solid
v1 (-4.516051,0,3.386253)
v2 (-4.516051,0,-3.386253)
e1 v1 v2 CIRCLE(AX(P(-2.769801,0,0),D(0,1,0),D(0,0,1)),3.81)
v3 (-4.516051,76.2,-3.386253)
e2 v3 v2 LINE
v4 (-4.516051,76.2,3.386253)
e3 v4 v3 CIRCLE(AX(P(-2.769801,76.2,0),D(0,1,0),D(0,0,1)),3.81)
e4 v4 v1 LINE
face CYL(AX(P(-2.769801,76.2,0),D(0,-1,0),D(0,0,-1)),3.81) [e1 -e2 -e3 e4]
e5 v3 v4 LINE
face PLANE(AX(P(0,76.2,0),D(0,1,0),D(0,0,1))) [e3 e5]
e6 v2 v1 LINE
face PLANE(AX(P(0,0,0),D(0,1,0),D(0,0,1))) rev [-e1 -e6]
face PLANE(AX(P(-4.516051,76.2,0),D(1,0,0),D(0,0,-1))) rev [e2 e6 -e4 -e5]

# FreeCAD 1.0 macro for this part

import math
import FreeCAD as App
import Part
import Sketcher
from FreeCAD import Vector
Q = App.Units.Quantity

doc = App.newDocument("Part")
body = doc.addObject("PartDesign::Body", "Body")

# Sketch on XZ plane
sketch1 = body.newObject("Sketcher::SketchObject", "Sketch")
sketch1.AttachmentSupport = (doc.getObject("XZ_Plane"), [""])
sketch1.MapMode = "FlatFace"
sketch1.addGeometry([
    Part.ArcOfCircle(Part.Circle(Vector(-2.8, 0, 0), Vector(0, 0, 1), 3.8), math.radians(-117), math.radians(0)),
    Part.LineSegment(Vector(-4.5, -3.4, 0), Vector(-4.5, 3.4, 0)),
    Part.ArcOfCircle(Part.Circle(Vector(-2.8, 0, 0), Vector(0, 0, 1), 3.8), math.radians(0), math.radians(117)),
], False)
sketch1.addConstraint([
    Sketcher.Constraint("Coincident", 0, 1, 1, 1),
    Sketcher.Constraint("Coincident", 1, 2, 2, 2),
    Sketcher.Constraint("Tangent", 2, 1, 0, 2),
    Sketcher.Constraint("Vertical", 1),
    Sketcher.Constraint("Equal", 0, 2),
    Sketcher.Constraint("PointOnObject", 0, 3, -1),
    Sketcher.Constraint("PointOnObject", 2, 1, -1),
    Sketcher.Constraint("Radius", 0, Q("0.15 in")),
    Sketcher.Constraint("DistanceX", 0, 1, 2, 1, Q("0.21875 in")),
    Sketcher.Constraint("DistanceX", 0, 3, -1, 1, 2.769801),
])
pad1 = body.newObject("PartDesign::Pad", "Pad")
pad1.Profile = sketch1
pad1.Length = Q("3 in")
pad1.Reversed = True

doc.recompute()
